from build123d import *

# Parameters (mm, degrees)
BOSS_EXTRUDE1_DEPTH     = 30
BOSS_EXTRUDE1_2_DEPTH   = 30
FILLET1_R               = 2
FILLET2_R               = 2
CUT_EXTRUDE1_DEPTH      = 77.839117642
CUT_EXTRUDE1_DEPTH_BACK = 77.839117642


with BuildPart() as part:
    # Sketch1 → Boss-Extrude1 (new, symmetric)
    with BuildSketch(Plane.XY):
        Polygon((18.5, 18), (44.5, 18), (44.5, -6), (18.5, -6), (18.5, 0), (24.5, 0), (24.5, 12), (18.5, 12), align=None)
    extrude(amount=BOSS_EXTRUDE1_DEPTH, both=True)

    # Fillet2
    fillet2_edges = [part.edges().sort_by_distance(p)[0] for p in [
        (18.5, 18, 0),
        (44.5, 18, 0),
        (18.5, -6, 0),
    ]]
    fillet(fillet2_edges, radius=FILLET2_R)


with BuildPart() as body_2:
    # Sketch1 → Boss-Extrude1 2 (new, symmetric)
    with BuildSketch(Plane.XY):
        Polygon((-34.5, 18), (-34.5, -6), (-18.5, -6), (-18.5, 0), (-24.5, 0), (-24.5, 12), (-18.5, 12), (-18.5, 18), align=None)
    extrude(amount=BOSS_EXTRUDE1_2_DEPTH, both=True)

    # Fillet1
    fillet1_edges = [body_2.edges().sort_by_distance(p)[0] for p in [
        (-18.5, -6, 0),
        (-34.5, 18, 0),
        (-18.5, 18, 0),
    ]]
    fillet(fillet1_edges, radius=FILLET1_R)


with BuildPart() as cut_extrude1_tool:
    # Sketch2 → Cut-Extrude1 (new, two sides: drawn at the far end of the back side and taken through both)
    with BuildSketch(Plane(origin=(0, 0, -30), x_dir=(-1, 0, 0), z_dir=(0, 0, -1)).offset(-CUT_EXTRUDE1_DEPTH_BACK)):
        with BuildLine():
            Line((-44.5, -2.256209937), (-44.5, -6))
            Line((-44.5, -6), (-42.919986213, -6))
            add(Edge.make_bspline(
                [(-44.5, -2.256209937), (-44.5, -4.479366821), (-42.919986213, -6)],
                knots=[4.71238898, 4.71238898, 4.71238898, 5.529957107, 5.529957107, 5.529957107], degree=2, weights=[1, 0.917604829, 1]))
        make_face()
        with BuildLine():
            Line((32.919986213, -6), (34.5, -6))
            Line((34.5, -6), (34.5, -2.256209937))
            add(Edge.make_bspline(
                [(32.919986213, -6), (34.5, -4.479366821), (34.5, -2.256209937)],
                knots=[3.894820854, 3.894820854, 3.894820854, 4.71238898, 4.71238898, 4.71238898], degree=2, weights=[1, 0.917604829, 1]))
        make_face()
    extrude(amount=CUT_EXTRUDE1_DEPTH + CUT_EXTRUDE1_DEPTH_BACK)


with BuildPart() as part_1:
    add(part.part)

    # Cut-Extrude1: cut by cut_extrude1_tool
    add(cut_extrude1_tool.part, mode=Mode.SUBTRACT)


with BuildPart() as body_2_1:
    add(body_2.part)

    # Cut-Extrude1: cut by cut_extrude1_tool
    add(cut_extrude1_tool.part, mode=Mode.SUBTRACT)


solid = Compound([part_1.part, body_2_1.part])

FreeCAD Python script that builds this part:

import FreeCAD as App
import Part
import Sketcher
from FreeCAD import Vector


def edges_at(feature, points):
    """Names of the edges that pass closest to the given points."""
    edges = feature.Shape.Edges
    near = lambda p: min(range(len(edges)), key=lambda i: edges[i].distToShape(Part.Vertex(*p))[0])
    return sorted({f"Edge{near(p) + 1}" for p in points})

doc = App.newDocument("Part")
body = doc.addObject("PartDesign::Body", "Body")

# Sketch on XY plane
sketch1 = doc.addObject("Sketcher::SketchObject", "Sketch")
body.addObject(sketch1)
sketch1.AttachmentSupport = (doc.XY_Plane, [""])
sketch1.MapMode = "FlatFace"
sketch1.addGeometry(Part.LineSegment(Vector(44, 18, 0), Vector(18, 18, 0)), False)
sketch1.addGeometry(Part.LineSegment(Vector(18, 18, 0), Vector(18, 12, 0)), False)
sketch1.addGeometry(Part.LineSegment(Vector(18, 12, 0), Vector(24, 12, 0)), False)
sketch1.addGeometry(Part.LineSegment(Vector(24, 12, 0), Vector(24, 0, 0)), False)
sketch1.addGeometry(Part.LineSegment(Vector(24, 0, 0), Vector(18, 0, 0)), False)
sketch1.addGeometry(Part.LineSegment(Vector(18, 0, 0), Vector(18, -6, 0)), False)
sketch1.addGeometry(Part.LineSegment(Vector(18, -6, 0), Vector(44, -6, 0)), False)
sketch1.addGeometry(Part.LineSegment(Vector(44, -6, 0), Vector(44, 18, 0)), False)
sketch1.addConstraint(Sketcher.Constraint("Coincident", 0, 2, 1, 1))
sketch1.addConstraint(Sketcher.Constraint("Coincident", 1, 2, 2, 1))
sketch1.addConstraint(Sketcher.Constraint("Coincident", 2, 2, 3, 1))
sketch1.addConstraint(Sketcher.Constraint("Coincident", 3, 2, 4, 1))
sketch1.addConstraint(Sketcher.Constraint("Coincident", 4, 2, 5, 1))
sketch1.addConstraint(Sketcher.Constraint("Coincident", 5, 2, 6, 1))
sketch1.addConstraint(Sketcher.Constraint("Coincident", 6, 2, 7, 1))
sketch1.addConstraint(Sketcher.Constraint("Coincident", 7, 2, 0, 1))
sketch1.addConstraint(Sketcher.Constraint("Horizontal", 0))
sketch1.addConstraint(Sketcher.Constraint("Vertical", 1))
sketch1.addConstraint(Sketcher.Constraint("Horizontal", 2))
sketch1.addConstraint(Sketcher.Constraint("Vertical", 3))
sketch1.addConstraint(Sketcher.Constraint("Horizontal", 4))
sketch1.addConstraint(Sketcher.Constraint("Vertical", 5))
sketch1.addConstraint(Sketcher.Constraint("Horizontal", 6))
sketch1.addConstraint(Sketcher.Constraint("Vertical", 7))
sketch1.addConstraint(Sketcher.Constraint("PointOnObject", 3, 2, -1))
sketch1.addConstraint(Sketcher.Constraint("Vertical", 1, 2, 4, 2))
sketch1.addConstraint(Sketcher.Constraint("Equal", 4, 1))
sketch1.addConstraint(Sketcher.Constraint("Equal", 1, 5))
sketch1.addConstraint(Sketcher.Constraint("DistanceX", 0, 2, 0, 1, 26.0))
sketch1.addConstraint(Sketcher.Constraint("DistanceX", 2, 1, 2, 2, 6.0))
sketch1.addConstraint(Sketcher.Constraint("DistanceY", 3, 2, 3, 1, 12.0))
sketch1.addConstraint(Sketcher.Constraint("DistanceX", -1, 1, 0, 2, 18.5))
pad1 = doc.addObject("PartDesign::Pad", "Pad")
body.addObject(pad1)
pad1.Profile = sketch1
pad1.Length = 60
pad1.Midplane = True
doc.recompute()

fillet = doc.addObject("PartDesign::Fillet", "Fillet")
body.addObject(fillet)
fillet.Base = (pad1, edges_at(pad1, [(18.5, 18, 0), (44.5, 18, 0), (18.5, -6, 0)]))
fillet.Radius = 2
body2 = doc.addObject("PartDesign::Body", "Body001")

# Sketch on XY plane
sketch2 = doc.addObject("Sketcher::SketchObject", "Sketch001")
body2.addObject(sketch2)
sketch2.AttachmentSupport = (doc.getObject("XY_Plane001"), [""])
sketch2.MapMode = "FlatFace"
sketch2.addGeometry(Part.LineSegment(Vector(-34, 18, 0), Vector(-34, -6, 0)), False)
sketch2.addGeometry(Part.LineSegment(Vector(-34, -6, 0), Vector(-18, -6, 0)), False)
sketch2.addGeometry(Part.LineSegment(Vector(-18, -6, 0), Vector(-18, 0, 0)), False)
sketch2.addGeometry(Part.LineSegment(Vector(-18, 0, 0), Vector(-24, 0, 0)), False)
sketch2.addGeometry(Part.LineSegment(Vector(-24, 0, 0), Vector(-24, 12, 0)), False)
sketch2.addGeometry(Part.LineSegment(Vector(-24, 12, 0), Vector(-18, 12, 0)), False)
sketch2.addGeometry(Part.LineSegment(Vector(-18, 12, 0), Vector(-18, 18, 0)), False)
sketch2.addGeometry(Part.LineSegment(Vector(-18, 18, 0), Vector(-34, 18, 0)), False)
sketch2.addConstraint(Sketcher.Constraint("Coincident", 0, 2, 1, 1))
sketch2.addConstraint(Sketcher.Constraint("Coincident", 1, 2, 2, 1))
sketch2.addConstraint(Sketcher.Constraint("Coincident", 2, 2, 3, 1))
sketch2.addConstraint(Sketcher.Constraint("Coincident", 3, 2, 4, 1))
sketch2.addConstraint(Sketcher.Constraint("Coincident", 4, 2, 5, 1))
sketch2.addConstraint(Sketcher.Constraint("Coincident", 5, 2, 6, 1))
sketch2.addConstraint(Sketcher.Constraint("Coincident", 6, 2, 7, 1))
sketch2.addConstraint(Sketcher.Constraint("Coincident", 7, 2, 0, 1))
sketch2.addConstraint(Sketcher.Constraint("Vertical", 0))
sketch2.addConstraint(Sketcher.Constraint("Horizontal", 1))
sketch2.addConstraint(Sketcher.Constraint("Vertical", 2))
sketch2.addConstraint(Sketcher.Constraint("Horizontal", 3))
sketch2.addConstraint(Sketcher.Constraint("Vertical", 4))
sketch2.addConstraint(Sketcher.Constraint("Horizontal", 5))
sketch2.addConstraint(Sketcher.Constraint("Vertical", 6))
sketch2.addConstraint(Sketcher.Constraint("Horizontal", 7))
sketch2.addConstraint(Sketcher.Constraint("PointOnObject", 2, 2, -1))
sketch2.addConstraint(Sketcher.Constraint("Vertical", 2, 2, 5, 2))
sketch2.addConstraint(Sketcher.Constraint("Equal", 5, 2))
sketch2.addConstraint(Sketcher.Constraint("Equal", 2, 6))
sketch2.addConstraint(Sketcher.Constraint("DistanceX", 1, 1, 1, 2, 16.0))
sketch2.addConstraint(Sketcher.Constraint("DistanceX", 3, 2, 3, 1, 6.0))
sketch2.addConstraint(Sketcher.Constraint("DistanceY", 0, 2, 0, 1, 24.0))
sketch2.addConstraint(Sketcher.Constraint("DistanceX", 0, 2, -1, 1, 34.5))
pad2 = doc.addObject("PartDesign::Pad", "Pad001")
body2.addObject(pad2)
pad2.Profile = sketch2
pad2.Length = 60
pad2.Midplane = True
doc.recompute()

fillet2 = doc.addObject("PartDesign::Fillet", "Fillet001")
body2.addObject(fillet2)
fillet2.Base = (pad2, edges_at(pad2, [(-18.5, -6, 0), (-34.5, 18, 0), (-18.5, 18, 0)]))
fillet2.Radius = 2
body3 = doc.addObject("PartDesign::Body", "Body002")
body3.AllowCompound = True

# Sketch on XY plane
sketch3 = doc.addObject("Sketcher::SketchObject", "Sketch002")
body3.addObject(sketch3)
sketch3.AttachmentSupport = (doc.getObject("XY_Plane002"), [""])
sketch3.MapMode = "FlatFace"
sketch3.AttachmentOffset = App.Placement(Vector(0, 0, -30), App.Rotation())
sketch3.addGeometry(Part.LineSegment(Vector(44.5, -2.25621, 0), Vector(44.5, -6, 0)), False)
sketch3.addGeometry(Part.LineSegment(Vector(44.5, -6, 0), Vector(42.919986, -6, 0)), False)
sketch3.addGeometry(Part.BSplineCurve([Vector(44.5, -2.25621, 0), Vector(44.5, -4.479367, 0), Vector(42.919986, -6, 0)], [3, 3], [4.71238898, 5.529957107], False, 2, [1, 0.917604829, 1], False), False)
sketch3.addGeometry(Part.LineSegment(Vector(-32.919986, -6, 0), Vector(-34.5, -6, 0)), False)
sketch3.addGeometry(Part.LineSegment(Vector(-34.5, -6, 0), Vector(-34.5, -2.25621, 0)), False)
sketch3.addGeometry(Part.BSplineCurve([Vector(-32.919986, -6, 0), Vector(-34.5, -4.479367, 0), Vector(-34.5, -2.25621, 0)], [3, 3], [3.894820854, 4.71238898], False, 2, [1, 0.917604829, 1], False), False)
sketch3.addConstraint(Sketcher.Constraint("Block", 2))
sketch3.addConstraint(Sketcher.Constraint("Block", 5))
sketch3.addConstraint(Sketcher.Constraint("Coincident", 0, 2, 1, 1))
sketch3.addConstraint(Sketcher.Constraint("Coincident", 1, 2, 2, 2))
sketch3.addConstraint(Sketcher.Constraint("Coincident", 2, 1, 0, 1))
sketch3.addConstraint(Sketcher.Constraint("Coincident", 3, 2, 4, 1))
sketch3.addConstraint(Sketcher.Constraint("Coincident", 4, 2, 5, 2))
sketch3.addConstraint(Sketcher.Constraint("Coincident", 5, 1, 3, 1))
sketch3.addConstraint(Sketcher.Constraint("Vertical", 0))
sketch3.addConstraint(Sketcher.Constraint("Horizontal", 1))
sketch3.addConstraint(Sketcher.Constraint("Horizontal", 3))
sketch3.addConstraint(Sketcher.Constraint("Vertical", 4))
pad3 = doc.addObject("PartDesign::Pad", "Pad002")
body3.addObject(pad3)
pad3.Profile = sketch3
pad3.Type = "TwoLengths"
pad3.Length = 77.839118
pad3.Length2 = 77.839118
pad3.Reversed = True
doc.recompute()

body4 = doc.addObject("PartDesign::Body", "Body003")
body4.BaseFeature = body3
boolean = doc.addObject("PartDesign::Boolean", "Boolean")
body.addObject(boolean)
boolean.Type = "Cut"
boolean.addObjects([body4])
doc.recompute()

boolean2 = doc.addObject("PartDesign::Boolean", "Boolean001")
body2.addObject(boolean2)
boolean2.Type = "Cut"
boolean2.addObjects([body3])

doc.recompute()
